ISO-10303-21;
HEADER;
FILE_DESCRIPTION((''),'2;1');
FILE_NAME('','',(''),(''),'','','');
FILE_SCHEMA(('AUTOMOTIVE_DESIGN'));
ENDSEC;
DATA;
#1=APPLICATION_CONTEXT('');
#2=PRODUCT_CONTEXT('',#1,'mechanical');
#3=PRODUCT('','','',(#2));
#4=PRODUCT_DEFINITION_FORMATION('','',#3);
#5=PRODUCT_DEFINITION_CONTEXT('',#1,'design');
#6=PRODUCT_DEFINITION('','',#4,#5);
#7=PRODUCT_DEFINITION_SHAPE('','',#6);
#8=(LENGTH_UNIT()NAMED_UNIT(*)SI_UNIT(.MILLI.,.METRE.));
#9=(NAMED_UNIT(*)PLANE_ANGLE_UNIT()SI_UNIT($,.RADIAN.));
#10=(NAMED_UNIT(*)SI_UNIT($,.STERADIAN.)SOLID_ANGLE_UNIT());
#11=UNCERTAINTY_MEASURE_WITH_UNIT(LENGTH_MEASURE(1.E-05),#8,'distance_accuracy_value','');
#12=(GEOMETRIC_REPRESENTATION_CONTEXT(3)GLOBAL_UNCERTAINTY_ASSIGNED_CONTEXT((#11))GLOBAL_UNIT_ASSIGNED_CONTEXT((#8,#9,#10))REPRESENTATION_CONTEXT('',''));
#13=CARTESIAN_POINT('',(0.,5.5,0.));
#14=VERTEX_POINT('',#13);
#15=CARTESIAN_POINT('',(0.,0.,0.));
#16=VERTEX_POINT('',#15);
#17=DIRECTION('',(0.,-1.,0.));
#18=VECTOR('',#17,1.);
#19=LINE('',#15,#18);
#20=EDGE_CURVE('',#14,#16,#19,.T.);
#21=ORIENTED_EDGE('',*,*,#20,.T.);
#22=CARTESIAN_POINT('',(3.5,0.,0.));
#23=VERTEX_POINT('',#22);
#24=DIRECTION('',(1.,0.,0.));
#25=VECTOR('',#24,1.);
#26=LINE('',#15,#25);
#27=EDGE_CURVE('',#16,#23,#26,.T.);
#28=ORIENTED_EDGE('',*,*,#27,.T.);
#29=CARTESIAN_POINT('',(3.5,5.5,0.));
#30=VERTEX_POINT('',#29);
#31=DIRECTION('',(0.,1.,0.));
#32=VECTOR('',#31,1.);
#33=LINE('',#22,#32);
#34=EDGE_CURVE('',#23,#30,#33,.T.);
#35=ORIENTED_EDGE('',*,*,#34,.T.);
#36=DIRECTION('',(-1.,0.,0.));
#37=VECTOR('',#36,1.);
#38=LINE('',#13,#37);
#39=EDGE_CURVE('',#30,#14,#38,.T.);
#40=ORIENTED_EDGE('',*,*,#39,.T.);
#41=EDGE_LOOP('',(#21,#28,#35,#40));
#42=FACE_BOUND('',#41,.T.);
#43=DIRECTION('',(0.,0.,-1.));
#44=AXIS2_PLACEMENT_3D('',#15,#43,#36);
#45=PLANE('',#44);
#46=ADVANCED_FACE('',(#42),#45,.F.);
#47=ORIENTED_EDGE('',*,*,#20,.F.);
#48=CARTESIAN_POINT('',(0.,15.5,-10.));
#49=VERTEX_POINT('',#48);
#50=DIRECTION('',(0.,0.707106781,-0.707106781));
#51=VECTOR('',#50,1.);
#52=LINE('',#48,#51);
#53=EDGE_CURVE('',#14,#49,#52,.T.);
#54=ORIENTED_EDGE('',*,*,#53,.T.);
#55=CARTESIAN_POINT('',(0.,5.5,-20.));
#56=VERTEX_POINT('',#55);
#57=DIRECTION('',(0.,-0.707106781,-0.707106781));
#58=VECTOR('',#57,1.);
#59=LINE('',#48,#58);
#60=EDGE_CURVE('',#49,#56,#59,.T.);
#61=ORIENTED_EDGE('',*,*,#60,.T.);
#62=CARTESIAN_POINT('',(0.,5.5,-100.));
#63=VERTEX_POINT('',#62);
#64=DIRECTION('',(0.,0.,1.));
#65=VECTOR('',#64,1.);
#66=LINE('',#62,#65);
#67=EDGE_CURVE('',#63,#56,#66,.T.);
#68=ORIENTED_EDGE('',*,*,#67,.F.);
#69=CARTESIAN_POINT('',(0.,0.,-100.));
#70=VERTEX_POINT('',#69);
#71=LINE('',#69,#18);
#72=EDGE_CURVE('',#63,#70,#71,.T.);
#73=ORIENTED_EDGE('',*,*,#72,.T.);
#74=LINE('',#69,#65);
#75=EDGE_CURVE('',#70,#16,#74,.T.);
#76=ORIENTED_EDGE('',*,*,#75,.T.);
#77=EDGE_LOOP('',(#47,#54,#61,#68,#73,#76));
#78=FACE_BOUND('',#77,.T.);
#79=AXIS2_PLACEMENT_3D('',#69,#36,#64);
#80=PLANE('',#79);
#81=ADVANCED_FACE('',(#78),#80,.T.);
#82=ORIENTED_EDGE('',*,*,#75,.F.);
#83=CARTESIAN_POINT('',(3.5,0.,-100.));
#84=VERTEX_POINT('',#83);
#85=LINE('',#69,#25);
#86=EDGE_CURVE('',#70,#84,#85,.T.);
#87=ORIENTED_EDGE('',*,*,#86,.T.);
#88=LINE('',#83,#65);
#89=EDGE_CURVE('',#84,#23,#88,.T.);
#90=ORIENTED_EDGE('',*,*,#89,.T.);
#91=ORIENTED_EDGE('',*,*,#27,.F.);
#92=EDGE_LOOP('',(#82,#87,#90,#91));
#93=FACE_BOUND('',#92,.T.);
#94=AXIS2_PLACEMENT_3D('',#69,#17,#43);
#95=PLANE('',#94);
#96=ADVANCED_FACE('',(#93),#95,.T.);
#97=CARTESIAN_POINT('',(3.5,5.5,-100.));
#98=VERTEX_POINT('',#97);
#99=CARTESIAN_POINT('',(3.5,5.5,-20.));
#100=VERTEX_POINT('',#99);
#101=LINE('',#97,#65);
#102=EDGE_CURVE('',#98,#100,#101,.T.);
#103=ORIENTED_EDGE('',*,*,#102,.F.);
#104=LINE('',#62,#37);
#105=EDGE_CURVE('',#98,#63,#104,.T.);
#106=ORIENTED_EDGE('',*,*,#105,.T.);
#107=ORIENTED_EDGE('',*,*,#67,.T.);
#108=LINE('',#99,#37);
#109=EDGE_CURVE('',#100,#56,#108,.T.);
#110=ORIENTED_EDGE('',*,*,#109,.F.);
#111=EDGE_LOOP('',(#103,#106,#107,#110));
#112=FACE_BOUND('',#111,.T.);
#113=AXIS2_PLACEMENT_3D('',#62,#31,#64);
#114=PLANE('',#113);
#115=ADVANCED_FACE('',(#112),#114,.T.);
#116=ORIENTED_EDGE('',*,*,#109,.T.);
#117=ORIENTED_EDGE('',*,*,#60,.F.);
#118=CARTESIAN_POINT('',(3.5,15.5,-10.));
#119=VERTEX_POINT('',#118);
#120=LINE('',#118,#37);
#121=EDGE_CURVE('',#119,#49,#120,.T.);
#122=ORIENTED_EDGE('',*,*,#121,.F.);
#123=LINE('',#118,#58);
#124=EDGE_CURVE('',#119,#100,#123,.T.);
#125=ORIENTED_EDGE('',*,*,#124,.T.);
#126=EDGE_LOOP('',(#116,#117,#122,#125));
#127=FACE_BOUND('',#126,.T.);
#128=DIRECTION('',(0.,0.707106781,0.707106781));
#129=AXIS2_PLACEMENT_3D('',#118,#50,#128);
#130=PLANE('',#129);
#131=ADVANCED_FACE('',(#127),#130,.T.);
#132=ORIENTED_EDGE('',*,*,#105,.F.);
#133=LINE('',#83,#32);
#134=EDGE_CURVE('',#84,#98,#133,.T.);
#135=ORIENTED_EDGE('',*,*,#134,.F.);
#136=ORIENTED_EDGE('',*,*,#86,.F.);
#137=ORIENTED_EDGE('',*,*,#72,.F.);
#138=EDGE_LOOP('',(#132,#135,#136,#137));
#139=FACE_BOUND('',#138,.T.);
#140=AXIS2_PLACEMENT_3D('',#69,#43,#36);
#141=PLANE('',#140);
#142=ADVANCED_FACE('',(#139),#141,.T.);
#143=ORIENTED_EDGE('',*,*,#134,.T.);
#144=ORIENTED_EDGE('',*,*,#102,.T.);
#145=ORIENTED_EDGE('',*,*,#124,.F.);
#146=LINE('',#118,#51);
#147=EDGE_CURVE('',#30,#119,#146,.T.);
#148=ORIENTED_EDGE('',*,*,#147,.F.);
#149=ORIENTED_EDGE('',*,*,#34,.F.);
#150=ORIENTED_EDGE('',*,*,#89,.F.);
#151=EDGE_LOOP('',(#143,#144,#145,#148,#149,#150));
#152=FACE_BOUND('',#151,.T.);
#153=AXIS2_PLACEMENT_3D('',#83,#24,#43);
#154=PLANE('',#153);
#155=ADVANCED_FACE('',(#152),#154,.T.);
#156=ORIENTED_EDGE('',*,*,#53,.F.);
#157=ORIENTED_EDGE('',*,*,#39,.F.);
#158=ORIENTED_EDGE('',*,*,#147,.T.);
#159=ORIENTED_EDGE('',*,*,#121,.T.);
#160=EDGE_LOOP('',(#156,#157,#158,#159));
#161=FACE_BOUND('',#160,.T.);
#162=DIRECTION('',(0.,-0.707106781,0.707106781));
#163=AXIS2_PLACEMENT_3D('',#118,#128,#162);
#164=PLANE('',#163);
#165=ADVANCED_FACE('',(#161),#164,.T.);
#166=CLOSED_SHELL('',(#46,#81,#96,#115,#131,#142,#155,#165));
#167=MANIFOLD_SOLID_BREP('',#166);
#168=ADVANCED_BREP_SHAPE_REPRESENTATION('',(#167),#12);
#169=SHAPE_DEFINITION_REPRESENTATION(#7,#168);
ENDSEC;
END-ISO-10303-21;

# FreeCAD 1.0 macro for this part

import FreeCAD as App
import Part
import Sketcher

V = App.Vector

doc = App.newDocument("Part")
params = doc.addObject("Spreadsheet::Sheet", "Params")
for row, (alias, value) in enumerate([
    ("sketch1_width", "3.5 mm"),
    ("sketch1_height", "5.5 mm"),
    ("pad1_length", "100 mm"),
    ("sketch2_height", "20 mm"),
    ("pad2_length", "3.5 mm"),
], start=1):
    params.set(f"A{row}", alias)
    params.set(f"B{row}", "=" + value)
    params.setAlias(f"B{row}", alias)

body = doc.addObject("PartDesign::Body", "Body")

# Sketch on XY plane
sketch1 = body.newObject("Sketcher::SketchObject", "Sketch")
sketch1.AttachmentSupport = (doc.getObject("XY_Plane"), [""])
sketch1.MapMode = "FlatFace"
sketch1.addGeometry([
    Part.LineSegment(V(0, 5.5, 0), V(0, 0, 0)),
    Part.LineSegment(V(0, 0, 0), V(3.5, 0, 0)),
    Part.LineSegment(V(3.5, 0, 0), V(3.5, 5.5, 0)),
    Part.LineSegment(V(3.5, 5.5, 0), V(0, 5.5, 0)),
], False)
sketch1.addConstraint([
    Sketcher.Constraint("Coincident", 0, 2, 1, 1),
    Sketcher.Constraint("Coincident", 1, 2, 2, 1),
    Sketcher.Constraint("Coincident", 2, 2, 3, 1),
    Sketcher.Constraint("Coincident", 3, 2, 0, 1),
    Sketcher.Constraint("Vertical", 0),
    Sketcher.Constraint("Horizontal", 1),
    Sketcher.Constraint("Vertical", 2),
    Sketcher.Constraint("Horizontal", 3),
    Sketcher.Constraint("Coincident", 0, 2, -1, 1),
    Sketcher.Constraint("DistanceX", 1, 1, 1, 2, 3.5),
    Sketcher.Constraint("DistanceY", 0, 2, 0, 1, 5.5),
])
sketch1.setExpression("Constraints[9]", "Params.sketch1_width")
sketch1.setExpression("Constraints[10]", "Params.sketch1_height")
pad1 = body.newObject("PartDesign::Pad", "Pad")
pad1.Profile = sketch1
pad1.setExpression("Length", "Params.pad1_length")
pad1.Reversed = True

# Sketch on YZ plane
sketch2 = body.newObject("Sketcher::SketchObject", "Sketch001")
sketch2.AttachmentSupport = (doc.getObject("YZ_Plane"), [""])
sketch2.MapMode = "FlatFace"
sketch2.addGeometry([
    Part.LineSegment(V(6, -20, 0), V(6, 0, 0)),
    Part.LineSegment(V(6, 0, 0), V(16, -10, 0)),
    Part.LineSegment(V(16, -10, 0), V(6, -20, 0)),
], False)
sketch2.addConstraint([
    Sketcher.Constraint("Coincident", 0, 2, 1, 1),
    Sketcher.Constraint("Coincident", 1, 2, 2, 1),
    Sketcher.Constraint("Coincident", 2, 2, 0, 1),
    Sketcher.Constraint("Vertical", 0),
    Sketcher.Constraint("PointOnObject", 0, 2, -1),
    Sketcher.Constraint("Perpendicular", 1, 2),
    Sketcher.Constraint("Equal", 1, 2),
    Sketcher.Constraint("DistanceY", 0, 1, 0, 2, 20.0),
    Sketcher.Constraint("DistanceX", -1, 1, 0, 2, 5.5),
])
sketch2.setExpression("Constraints[7]", "Params.sketch2_height")
pad2 = body.newObject("PartDesign::Pad", "Pad001")
pad2.Profile = sketch2
pad2.setExpression("Length", "Params.pad2_length")

doc.recompute()
